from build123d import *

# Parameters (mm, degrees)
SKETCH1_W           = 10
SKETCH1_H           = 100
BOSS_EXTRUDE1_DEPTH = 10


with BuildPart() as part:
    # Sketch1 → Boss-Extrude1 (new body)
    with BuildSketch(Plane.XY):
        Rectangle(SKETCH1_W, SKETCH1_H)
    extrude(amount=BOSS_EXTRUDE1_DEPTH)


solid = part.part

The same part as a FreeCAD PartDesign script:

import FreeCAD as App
import Part
import Sketcher

V = App.Vector


def add_polygon(sketch, points):
    """Adds a closed chain of lines whose ends are joined by coincident constraints."""
    first, n = sketch.GeometryCount, len(points)
    for a, b in zip(points, points[1:] + points[:1]):
        sketch.addGeometry(Part.LineSegment(App.Vector(*a, 0), App.Vector(*b, 0)), False)
    for i in range(n):
        sketch.addConstraint(Sketcher.Constraint("Coincident", first + i, 2, first + (i + 1) % n, 1))

doc = App.newDocument("Part")
body = doc.addObject("PartDesign::Body", "Body")

# Sketch on XY plane
sketch1 = body.newObject("Sketcher::SketchObject", "Sketch")
sketch1.AttachmentSupport = (doc.getObject("XY_Plane"), [""])
sketch1.MapMode = "FlatFace"
add_polygon(sketch1, [(-5, 50), (-5, -50), (5, -50), (5, 50)])  # lines 0-3
sketch1.addConstraint(Sketcher.Constraint("Vertical", 0))
sketch1.addConstraint(Sketcher.Constraint("Horizontal", 1))
sketch1.addConstraint(Sketcher.Constraint("Vertical", 2))
sketch1.addConstraint(Sketcher.Constraint("Horizontal", 3))
sketch1.addConstraint(Sketcher.Constraint("Symmetric", 0, 2, 2, 2, -1, 1))
sketch1.addConstraint(Sketcher.Constraint("DistanceX", 1, 1, 1, 2, 10.0))
sketch1.addConstraint(Sketcher.Constraint("DistanceY", 0, 2, 0, 1, 100.0))
pad1 = body.newObject("PartDesign::Pad", "Pad")
pad1.Profile = sketch1
pad1.Length = 10

doc.recompute()
